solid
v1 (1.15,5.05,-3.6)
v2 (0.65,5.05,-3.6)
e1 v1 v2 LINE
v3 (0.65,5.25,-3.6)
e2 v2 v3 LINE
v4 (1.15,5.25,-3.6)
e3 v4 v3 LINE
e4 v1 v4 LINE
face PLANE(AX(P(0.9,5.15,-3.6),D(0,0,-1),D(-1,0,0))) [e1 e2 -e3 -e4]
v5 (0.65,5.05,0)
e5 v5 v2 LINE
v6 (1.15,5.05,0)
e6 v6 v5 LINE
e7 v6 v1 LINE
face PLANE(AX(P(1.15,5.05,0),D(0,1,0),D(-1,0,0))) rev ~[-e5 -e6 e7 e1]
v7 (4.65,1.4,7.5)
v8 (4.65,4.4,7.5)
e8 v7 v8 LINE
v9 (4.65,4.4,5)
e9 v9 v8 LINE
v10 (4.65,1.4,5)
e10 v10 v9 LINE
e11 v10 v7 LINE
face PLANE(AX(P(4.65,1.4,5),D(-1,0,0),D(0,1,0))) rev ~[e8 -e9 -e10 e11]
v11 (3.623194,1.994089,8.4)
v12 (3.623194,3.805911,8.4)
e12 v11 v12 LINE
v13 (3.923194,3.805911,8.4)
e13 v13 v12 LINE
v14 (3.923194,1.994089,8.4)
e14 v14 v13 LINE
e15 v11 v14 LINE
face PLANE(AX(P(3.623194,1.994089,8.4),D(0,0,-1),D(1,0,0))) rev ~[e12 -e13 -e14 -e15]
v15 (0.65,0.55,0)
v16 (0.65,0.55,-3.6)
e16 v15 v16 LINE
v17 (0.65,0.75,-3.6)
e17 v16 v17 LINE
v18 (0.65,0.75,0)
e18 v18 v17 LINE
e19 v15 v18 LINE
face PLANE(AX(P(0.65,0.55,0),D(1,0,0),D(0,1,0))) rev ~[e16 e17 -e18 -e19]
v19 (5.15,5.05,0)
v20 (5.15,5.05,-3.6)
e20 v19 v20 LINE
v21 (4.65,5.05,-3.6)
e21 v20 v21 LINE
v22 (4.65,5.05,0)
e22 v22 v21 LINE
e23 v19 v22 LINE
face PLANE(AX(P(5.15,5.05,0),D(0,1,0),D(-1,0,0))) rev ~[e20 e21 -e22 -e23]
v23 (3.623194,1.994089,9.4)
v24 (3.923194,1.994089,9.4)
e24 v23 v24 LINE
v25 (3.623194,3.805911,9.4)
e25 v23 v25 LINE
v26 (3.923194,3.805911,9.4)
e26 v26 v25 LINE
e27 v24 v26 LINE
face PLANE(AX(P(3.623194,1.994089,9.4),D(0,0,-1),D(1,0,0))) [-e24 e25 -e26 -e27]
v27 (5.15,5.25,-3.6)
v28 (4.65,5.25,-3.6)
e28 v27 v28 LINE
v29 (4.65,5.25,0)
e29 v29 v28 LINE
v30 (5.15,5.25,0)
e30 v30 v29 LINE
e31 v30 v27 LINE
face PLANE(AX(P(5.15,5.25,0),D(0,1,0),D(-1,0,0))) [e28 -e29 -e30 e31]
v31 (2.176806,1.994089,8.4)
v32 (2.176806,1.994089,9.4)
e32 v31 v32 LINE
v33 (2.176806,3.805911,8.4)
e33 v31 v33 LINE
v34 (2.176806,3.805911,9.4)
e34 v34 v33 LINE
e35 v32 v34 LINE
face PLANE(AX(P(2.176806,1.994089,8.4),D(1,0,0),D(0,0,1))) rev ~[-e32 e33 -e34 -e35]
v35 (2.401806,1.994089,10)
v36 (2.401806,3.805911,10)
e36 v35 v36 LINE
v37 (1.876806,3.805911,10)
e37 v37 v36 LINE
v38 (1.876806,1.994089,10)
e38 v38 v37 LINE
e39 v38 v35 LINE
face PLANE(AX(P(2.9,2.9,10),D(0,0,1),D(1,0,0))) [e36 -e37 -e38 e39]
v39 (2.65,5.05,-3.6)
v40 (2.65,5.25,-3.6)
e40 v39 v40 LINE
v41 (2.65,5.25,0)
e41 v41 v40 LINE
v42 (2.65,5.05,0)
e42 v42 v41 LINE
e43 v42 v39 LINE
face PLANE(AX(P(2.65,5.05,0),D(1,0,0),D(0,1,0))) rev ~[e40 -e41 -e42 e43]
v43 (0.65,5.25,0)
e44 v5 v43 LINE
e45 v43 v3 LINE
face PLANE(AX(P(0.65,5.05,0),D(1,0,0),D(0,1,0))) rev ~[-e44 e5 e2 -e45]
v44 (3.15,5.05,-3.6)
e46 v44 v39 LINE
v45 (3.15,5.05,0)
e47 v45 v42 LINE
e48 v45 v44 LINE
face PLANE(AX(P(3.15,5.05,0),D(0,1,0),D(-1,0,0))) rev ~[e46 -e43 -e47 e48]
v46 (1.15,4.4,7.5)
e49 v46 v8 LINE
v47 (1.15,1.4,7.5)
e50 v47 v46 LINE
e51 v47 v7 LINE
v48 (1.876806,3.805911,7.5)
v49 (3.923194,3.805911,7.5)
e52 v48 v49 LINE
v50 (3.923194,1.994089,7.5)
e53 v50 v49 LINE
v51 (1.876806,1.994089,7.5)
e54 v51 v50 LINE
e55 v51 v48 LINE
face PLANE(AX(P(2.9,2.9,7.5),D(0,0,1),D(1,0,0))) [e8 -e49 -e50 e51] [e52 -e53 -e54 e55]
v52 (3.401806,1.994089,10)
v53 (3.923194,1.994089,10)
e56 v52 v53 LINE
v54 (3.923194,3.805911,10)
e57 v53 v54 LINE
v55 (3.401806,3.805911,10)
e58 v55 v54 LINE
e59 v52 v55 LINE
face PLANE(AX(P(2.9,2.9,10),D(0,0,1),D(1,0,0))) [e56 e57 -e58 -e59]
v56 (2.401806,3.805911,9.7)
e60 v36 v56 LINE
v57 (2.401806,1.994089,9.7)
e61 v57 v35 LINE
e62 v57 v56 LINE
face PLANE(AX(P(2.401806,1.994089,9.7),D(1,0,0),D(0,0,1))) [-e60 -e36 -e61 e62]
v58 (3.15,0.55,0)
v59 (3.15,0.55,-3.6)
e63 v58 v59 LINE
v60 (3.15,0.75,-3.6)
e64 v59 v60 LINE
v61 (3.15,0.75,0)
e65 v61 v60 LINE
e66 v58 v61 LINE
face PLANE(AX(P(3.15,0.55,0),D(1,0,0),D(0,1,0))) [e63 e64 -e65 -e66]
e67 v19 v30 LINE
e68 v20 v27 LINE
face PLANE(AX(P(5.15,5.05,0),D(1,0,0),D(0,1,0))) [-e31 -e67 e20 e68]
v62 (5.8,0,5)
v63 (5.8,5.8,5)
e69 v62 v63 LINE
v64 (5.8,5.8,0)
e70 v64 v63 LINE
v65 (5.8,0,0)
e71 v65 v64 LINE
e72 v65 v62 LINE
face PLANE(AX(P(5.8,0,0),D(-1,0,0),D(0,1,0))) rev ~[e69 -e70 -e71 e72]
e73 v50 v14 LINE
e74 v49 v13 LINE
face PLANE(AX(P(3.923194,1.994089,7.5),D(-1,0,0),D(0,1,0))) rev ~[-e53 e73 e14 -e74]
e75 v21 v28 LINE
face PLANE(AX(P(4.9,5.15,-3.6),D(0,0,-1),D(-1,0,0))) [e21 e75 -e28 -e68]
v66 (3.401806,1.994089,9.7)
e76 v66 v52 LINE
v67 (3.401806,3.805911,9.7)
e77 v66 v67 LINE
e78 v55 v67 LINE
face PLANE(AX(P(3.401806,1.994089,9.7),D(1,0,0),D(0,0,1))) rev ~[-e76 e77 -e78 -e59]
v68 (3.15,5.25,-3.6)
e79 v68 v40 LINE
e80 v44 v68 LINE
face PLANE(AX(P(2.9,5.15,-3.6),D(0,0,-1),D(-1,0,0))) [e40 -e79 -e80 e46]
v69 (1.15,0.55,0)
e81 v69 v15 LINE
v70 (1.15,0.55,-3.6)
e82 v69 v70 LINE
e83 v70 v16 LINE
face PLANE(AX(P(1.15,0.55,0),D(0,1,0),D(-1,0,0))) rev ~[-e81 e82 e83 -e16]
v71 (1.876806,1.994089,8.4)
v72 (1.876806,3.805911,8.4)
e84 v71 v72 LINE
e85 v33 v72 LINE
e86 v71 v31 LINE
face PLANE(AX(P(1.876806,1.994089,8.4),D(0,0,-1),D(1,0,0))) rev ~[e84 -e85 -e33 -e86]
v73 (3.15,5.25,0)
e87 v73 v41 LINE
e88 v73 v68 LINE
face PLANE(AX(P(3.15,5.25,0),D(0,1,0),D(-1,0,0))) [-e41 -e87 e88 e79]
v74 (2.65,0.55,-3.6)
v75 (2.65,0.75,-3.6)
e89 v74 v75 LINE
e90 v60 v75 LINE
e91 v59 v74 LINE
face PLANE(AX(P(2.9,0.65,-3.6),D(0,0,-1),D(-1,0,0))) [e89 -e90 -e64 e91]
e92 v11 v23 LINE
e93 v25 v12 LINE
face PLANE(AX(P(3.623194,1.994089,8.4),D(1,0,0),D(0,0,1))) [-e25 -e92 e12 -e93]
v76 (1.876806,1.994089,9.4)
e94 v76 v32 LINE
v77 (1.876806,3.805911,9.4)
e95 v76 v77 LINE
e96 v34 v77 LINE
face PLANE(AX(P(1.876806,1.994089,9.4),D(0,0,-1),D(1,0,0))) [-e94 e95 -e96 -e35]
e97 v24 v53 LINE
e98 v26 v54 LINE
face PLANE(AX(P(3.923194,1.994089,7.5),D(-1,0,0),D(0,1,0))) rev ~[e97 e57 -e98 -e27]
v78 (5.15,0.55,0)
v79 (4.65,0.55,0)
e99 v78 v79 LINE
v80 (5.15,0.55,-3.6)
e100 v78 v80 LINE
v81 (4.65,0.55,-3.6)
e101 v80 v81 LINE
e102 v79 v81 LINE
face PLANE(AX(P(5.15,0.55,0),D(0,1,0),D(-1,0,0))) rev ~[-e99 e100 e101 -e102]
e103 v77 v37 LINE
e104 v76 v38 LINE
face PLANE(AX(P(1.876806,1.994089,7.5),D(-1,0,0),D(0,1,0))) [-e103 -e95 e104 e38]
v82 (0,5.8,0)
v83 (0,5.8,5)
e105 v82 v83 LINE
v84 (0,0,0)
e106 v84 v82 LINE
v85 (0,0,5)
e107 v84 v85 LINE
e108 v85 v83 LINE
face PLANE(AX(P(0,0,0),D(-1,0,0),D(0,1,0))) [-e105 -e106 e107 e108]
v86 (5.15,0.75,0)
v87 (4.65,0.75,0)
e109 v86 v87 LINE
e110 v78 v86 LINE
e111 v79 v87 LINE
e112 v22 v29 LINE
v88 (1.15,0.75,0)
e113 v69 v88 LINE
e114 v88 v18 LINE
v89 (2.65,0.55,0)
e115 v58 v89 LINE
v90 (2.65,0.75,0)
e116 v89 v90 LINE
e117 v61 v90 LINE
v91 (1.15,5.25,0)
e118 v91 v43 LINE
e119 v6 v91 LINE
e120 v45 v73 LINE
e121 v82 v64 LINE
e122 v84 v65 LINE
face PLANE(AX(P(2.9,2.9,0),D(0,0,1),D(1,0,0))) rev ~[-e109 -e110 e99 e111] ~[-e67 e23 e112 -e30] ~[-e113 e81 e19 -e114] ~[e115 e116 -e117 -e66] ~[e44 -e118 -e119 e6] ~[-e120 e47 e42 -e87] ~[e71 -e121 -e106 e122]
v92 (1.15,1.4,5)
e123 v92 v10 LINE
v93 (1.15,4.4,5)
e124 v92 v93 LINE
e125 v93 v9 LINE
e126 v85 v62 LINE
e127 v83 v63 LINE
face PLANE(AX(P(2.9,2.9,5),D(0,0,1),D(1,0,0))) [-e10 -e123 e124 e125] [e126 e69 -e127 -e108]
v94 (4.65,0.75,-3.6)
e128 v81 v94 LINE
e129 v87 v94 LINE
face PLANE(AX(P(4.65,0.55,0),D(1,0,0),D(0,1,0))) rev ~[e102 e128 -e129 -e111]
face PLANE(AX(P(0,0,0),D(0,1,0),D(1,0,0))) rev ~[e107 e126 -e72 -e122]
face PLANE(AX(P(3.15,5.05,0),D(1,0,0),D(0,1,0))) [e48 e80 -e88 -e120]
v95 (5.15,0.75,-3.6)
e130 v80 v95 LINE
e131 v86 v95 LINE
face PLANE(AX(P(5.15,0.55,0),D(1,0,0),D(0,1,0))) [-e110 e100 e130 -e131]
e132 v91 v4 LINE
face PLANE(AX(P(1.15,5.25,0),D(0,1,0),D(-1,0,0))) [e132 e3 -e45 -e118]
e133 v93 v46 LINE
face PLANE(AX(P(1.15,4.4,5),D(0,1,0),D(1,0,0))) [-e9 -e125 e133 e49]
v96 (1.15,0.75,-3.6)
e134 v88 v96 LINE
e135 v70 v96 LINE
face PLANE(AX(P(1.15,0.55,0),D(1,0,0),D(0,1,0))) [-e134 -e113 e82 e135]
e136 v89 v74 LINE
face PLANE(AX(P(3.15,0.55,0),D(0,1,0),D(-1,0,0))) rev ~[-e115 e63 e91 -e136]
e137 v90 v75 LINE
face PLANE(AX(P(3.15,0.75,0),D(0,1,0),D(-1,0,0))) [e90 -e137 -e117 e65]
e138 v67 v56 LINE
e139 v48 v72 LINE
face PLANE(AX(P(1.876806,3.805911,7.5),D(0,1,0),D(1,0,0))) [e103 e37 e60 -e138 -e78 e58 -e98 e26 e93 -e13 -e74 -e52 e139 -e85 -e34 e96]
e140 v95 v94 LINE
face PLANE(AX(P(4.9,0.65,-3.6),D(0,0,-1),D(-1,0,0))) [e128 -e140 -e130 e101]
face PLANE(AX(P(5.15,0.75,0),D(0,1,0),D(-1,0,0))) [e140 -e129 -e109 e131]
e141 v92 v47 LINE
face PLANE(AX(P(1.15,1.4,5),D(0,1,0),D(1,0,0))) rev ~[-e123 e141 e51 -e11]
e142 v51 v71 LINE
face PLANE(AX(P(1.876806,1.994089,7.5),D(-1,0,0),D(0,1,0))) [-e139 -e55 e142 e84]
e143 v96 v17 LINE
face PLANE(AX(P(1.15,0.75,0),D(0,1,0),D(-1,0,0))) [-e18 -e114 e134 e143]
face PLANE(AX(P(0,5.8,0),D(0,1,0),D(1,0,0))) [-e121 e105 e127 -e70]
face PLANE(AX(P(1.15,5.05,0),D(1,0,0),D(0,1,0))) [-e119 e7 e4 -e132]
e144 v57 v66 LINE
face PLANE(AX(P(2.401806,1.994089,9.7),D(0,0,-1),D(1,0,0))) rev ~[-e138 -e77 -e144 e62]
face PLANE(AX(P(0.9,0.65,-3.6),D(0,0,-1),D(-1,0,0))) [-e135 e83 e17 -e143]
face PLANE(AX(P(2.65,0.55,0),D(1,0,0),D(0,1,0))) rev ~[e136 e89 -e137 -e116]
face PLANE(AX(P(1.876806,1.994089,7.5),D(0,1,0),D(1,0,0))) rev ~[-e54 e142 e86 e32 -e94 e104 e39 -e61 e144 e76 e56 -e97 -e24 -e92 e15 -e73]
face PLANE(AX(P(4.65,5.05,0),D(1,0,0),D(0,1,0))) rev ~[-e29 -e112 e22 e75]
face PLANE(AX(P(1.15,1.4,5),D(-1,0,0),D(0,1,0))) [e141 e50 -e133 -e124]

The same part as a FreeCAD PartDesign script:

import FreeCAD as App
import Part
import Sketcher
from FreeCAD import Vector
Q = App.Units.Quantity


def add_polygon(sketch, points):
    """Adds a closed chain of lines whose ends are joined by coincident constraints."""
    first, n = sketch.GeometryCount, len(points)
    for a, b in zip(points, points[1:] + points[:1]):
        sketch.addGeometry(Part.LineSegment(App.Vector(*a, 0), App.Vector(*b, 0)), False)
    for i in range(n):
        sketch.addConstraint(Sketcher.Constraint("Coincident", first + i, 2, first + (i + 1) % n, 1))

doc = App.newDocument("Part")
body = doc.addObject("PartDesign::Body", "Body")

sketch1 = doc.addObject("Sketcher::SketchObject", "Sketch")
body.addObject(sketch1)
sketch1.AttachmentSupport = (doc.XY_Plane, [""])
sketch1.MapMode = "FlatFace"
add_polygon(sketch1, [(0, 6), (0, 0), (6, 0), (6, 6)])
sketch1.addConstraint([
    Sketcher.Constraint("Vertical", 0),
    Sketcher.Constraint("Horizontal", 1),
    Sketcher.Constraint("Vertical", 2),
    Sketcher.Constraint("Horizontal", 3),
    Sketcher.Constraint("Coincident", 0, 2, -1, 1),
    Sketcher.Constraint("Equal", 3, 0),
    Sketcher.Constraint("DistanceX", 1, 1, 1, 2, Q("5.8 mm")),
])
pad1 = doc.addObject("PartDesign::Pad", "Pad")
body.addObject(pad1)
pad1.Profile = sketch1
pad1.Length = 5

sketch2 = doc.addObject("Sketcher::SketchObject", "Sketch001")
body.addObject(sketch2)
sketch2.AttachmentSupport = (doc.XY_Plane, [""])
sketch2.MapMode = "FlatFace"
sketch2.AttachmentOffset = App.Placement(Vector(0, 0, 5), App.Rotation())
add_polygon(sketch2, [(1.1, 4.4), (1.1, 1.4), (4.7, 1.4), (4.7, 4.4)])
sketch2.addConstraint([
    Sketcher.Constraint("Vertical", 0),
    Sketcher.Constraint("Horizontal", 1),
    Sketcher.Constraint("Vertical", 2),
    Sketcher.Constraint("Horizontal", 3),
    Sketcher.Constraint("DistanceY", 0, 2, 0, 1, Q("3 mm")),
    Sketcher.Constraint("DistanceX", 1, 1, 1, 2, Q("3.5 mm")),
    Sketcher.Constraint("DistanceY", -1, 1, 0, 2, Q("1.4 mm")),
    Sketcher.Constraint("DistanceX", -1, 1, 0, 2, Q("1.15 mm")),
])
pad2 = doc.addObject("PartDesign::Pad", "Pad001")
body.addObject(pad2)
pad2.Profile = sketch2
pad2.Length = 2.5

sketch3 = doc.addObject("Sketcher::SketchObject", "Sketch002")
body.addObject(sketch3)
sketch3.AttachmentSupport = (doc.XY_Plane, [""])
sketch3.MapMode = "FlatFace"
sketch3.AttachmentOffset = App.Placement(Vector(0, 0, 7.5), App.Rotation())
add_polygon(sketch3, [(1.9, 3.8), (1.9, 2), (3.9, 2), (3.9, 3.8)])
sketch3.addConstraint([
    Sketcher.Constraint("Vertical", 0),
    Sketcher.Constraint("Horizontal", 1),
    Sketcher.Constraint("Vertical", 2),
    Sketcher.Constraint("Horizontal", 3),
    Sketcher.Constraint("DistanceX", 1, 1, 1, 2, Q("2.046389 mm")),
    Sketcher.Constraint("DistanceY", 0, 2, 0, 1, Q("1.811823 mm")),
    Sketcher.Constraint("DistanceY", -1, 1, 0, 2, Q("1.994089 mm")),
    Sketcher.Constraint("DistanceX", -1, 1, 0, 2, Q("1.876806 mm")),
])
pad3 = doc.addObject("PartDesign::Pad", "Pad002")
body.addObject(pad3)
pad3.Profile = sketch3
pad3.Length = 2.5

sketch4 = doc.addObject("Sketcher::SketchObject", "Sketch003")
body.addObject(sketch4)
sketch4.AttachmentSupport = (doc.XY_Plane, [""])
sketch4.MapMode = "FlatFace"
add_polygon(sketch4, [(5.15, 5.25), (5.15, 5.05), (4.65, 5.05), (4.65, 5.25)])
add_polygon(sketch4, [(3.15, 5.25), (3.15, 5.05), (2.65, 5.05), (2.65, 5.25)])
add_polygon(sketch4, [(1.15, 5.25), (1.15, 5.05), (0.65, 5.05), (0.65, 5.25)])
add_polygon(sketch4, [(1.15, 0.75), (1.15, 0.55), (0.65, 0.55), (0.65, 0.75)])
add_polygon(sketch4, [(3.15, 0.75), (3.15, 0.55), (2.65, 0.55), (2.65, 0.75)])
add_polygon(sketch4, [(5.15, 0.75), (5.15, 0.55), (4.65, 0.55), (4.65, 0.75)])
sketch4.addConstraint([
    Sketcher.Constraint("Vertical", 0),
    Sketcher.Constraint("Horizontal", 1),
    Sketcher.Constraint("Vertical", 2),
    Sketcher.Constraint("Horizontal", 3),
    Sketcher.Constraint("Vertical", 4),
    Sketcher.Constraint("Horizontal", 5),
    Sketcher.Constraint("Vertical", 6),
    Sketcher.Constraint("Horizontal", 7),
    Sketcher.Constraint("Vertical", 8),
    Sketcher.Constraint("Horizontal", 9),
    Sketcher.Constraint("Vertical", 10),
    Sketcher.Constraint("Horizontal", 11),
    Sketcher.Constraint("Vertical", 12),
    Sketcher.Constraint("Horizontal", 13),
    Sketcher.Constraint("Vertical", 14),
    Sketcher.Constraint("Horizontal", 15),
    Sketcher.Constraint("Vertical", 16),
    Sketcher.Constraint("Horizontal", 17),
    Sketcher.Constraint("Vertical", 18),
    Sketcher.Constraint("Horizontal", 19),
    Sketcher.Constraint("Vertical", 20),
    Sketcher.Constraint("Horizontal", 21),
    Sketcher.Constraint("Vertical", 22),
    Sketcher.Constraint("Horizontal", 23),
    Sketcher.Constraint("Horizontal", 1, 2, 4, 2),
    Sketcher.Constraint("Horizontal", 3, 2, 6, 2),
    Sketcher.Constraint("Horizontal", 5, 2, 8, 2),
    Sketcher.Constraint("Horizontal", 7, 2, 10, 2),
    Sketcher.Constraint("Horizontal", 13, 2, 16, 2),
    Sketcher.Constraint("Horizontal", 15, 2, 18, 2),
    Sketcher.Constraint("Horizontal", 17, 2, 20, 2),
    Sketcher.Constraint("Horizontal", 19, 2, 22, 2),
    Sketcher.Constraint("Vertical", 11, 2, 12, 2),
    Sketcher.Constraint("Vertical", 10, 2, 13, 2),
    Sketcher.Constraint("Vertical", 7, 2, 16, 2),
    Sketcher.Constraint("Vertical", 6, 2, 17, 2),
    Sketcher.Constraint("Vertical", 3, 2, 20, 2),
    Sketcher.Constraint("Vertical", 2, 2, 21, 2),
    Sketcher.Constraint("Equal", 3, 5),
    Sketcher.Constraint("Equal", 7, 9),
    Sketcher.Constraint("Equal", 10, 12),
    Sketcher.Constraint("DistanceX", 1, 2, 1, 1, Q("0.5 mm")),
    Sketcher.Constraint("DistanceY", 0, 2, 0, 1, Q("0.2 mm")),
    Sketcher.Constraint("DistanceX", 4, 2, 0, 2, Q("2 mm")),
    Sketcher.Constraint("DistanceX", 8, 2, 4, 2, Q("2 mm")),
    Sketcher.Constraint("DistanceY", 12, 2, 8, 2, Q("4.5 mm")),
    Sketcher.Constraint("DistanceX", -1, 1, 0, 2, Q("5.15 mm")),
    Sketcher.Constraint("DistanceY", -1, 1, 0, 2, Q("5.05 mm")),
])
pad4 = doc.addObject("PartDesign::Pad", "Pad003")
body.addObject(pad4)
pad4.Profile = sketch4
pad4.Length = 3.6
pad4.Reversed = True

sketch5 = doc.addObject("Sketcher::SketchObject", "Sketch004")
body.addObject(sketch5)
sketch5.AttachmentSupport = (doc.XZ_Plane, [""])
sketch5.MapMode = "FlatFace"
sketch5.AttachmentOffset = App.Placement(Vector(0, 0, -1.994089), App.Rotation())
add_polygon(sketch5, [(2.4, 10), (2.4, 9.7), (3.4, 9.7), (3.4, 10)])
add_polygon(sketch5, [(1.88, 9.4), (1.88, 8.4), (2.18, 8.4), (2.18, 9.4)])
add_polygon(sketch5, [(3.62, 9.4), (3.62, 8.4), (3.92, 8.4), (3.92, 9.4)])
sketch5.addConstraint([
    Sketcher.Constraint("Vertical", 0),
    Sketcher.Constraint("Horizontal", 1),
    Sketcher.Constraint("Vertical", 2),
    Sketcher.Constraint("Horizontal", 3),
    Sketcher.Constraint("Vertical", 4),
    Sketcher.Constraint("Horizontal", 5),
    Sketcher.Constraint("Vertical", 6),
    Sketcher.Constraint("Horizontal", 7),
    Sketcher.Constraint("Vertical", 8),
    Sketcher.Constraint("Horizontal", 9),
    Sketcher.Constraint("Vertical", 10),
    Sketcher.Constraint("Horizontal", 11),
    Sketcher.Constraint("Horizontal", 5, 2, 8, 2),
    Sketcher.Constraint("Horizontal", 7, 2, 10, 2),
    Sketcher.Constraint("Equal", 7, 9),
    Sketcher.Constraint("Equal", 11, 0),
    Sketcher.Constraint("Equal", 3, 4),
    Sketcher.Constraint("DistanceX", 1, 1, 1, 2, Q("1 mm")),
    Sketcher.Constraint("DistanceX", 5, 1, 5, 2, Q("0.3 mm")),
    Sketcher.Constraint("DistanceY", -1, 1, 2, 2, Q("10 mm")),
    Sketcher.Constraint("DistanceY", -1, 1, 4, 2, Q("8.4 mm")),
    Sketcher.Constraint("DistanceX", 4, 2, 0, 2, Q("0.525 mm")),
    Sketcher.Constraint("DistanceX", 1, 2, 8, 2, Q("0.221389 mm")),
    Sketcher.Constraint("DistanceX", -1, 1, 0, 2, Q("2.401806 mm")),
])
pocket1 = doc.addObject("PartDesign::Pocket", "Pocket")
body.addObject(pocket1)
pocket1.Profile = sketch5
pocket1.Length = 2

doc.recompute()
